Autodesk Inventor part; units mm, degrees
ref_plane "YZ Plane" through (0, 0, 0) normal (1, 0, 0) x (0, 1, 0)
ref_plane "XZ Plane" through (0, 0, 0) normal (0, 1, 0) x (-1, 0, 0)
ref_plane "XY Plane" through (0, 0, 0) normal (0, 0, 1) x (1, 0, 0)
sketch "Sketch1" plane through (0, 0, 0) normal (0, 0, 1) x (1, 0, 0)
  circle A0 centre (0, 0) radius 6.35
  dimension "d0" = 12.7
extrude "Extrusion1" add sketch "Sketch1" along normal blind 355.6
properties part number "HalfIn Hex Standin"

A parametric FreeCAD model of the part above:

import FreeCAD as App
import Part
import Sketcher
Q = App.Units.Quantity

doc = App.newDocument("Part")
body = doc.addObject("PartDesign::Body", "Body")

sketch1 = body.newObject("Sketcher::SketchObject", "Sketch")
sketch1.AttachmentSupport = (doc.getObject("XY_Plane"), [""])
sketch1.MapMode = "FlatFace"
sketch1.addGeometry(Part.Circle(App.Vector(0, 0, 0), App.Vector(0, 0, 1), 6), False)
sketch1.addConstraint([
    Sketcher.Constraint("Coincident", 0, 3, -1, 1),
    Sketcher.Constraint("Diameter", 0, Q("0.5 in")),
])
pad1 = body.newObject("PartDesign::Pad", "Pad")
pad1.Profile = sketch1
pad1.Length = Q("14 in")

doc.recompute()
